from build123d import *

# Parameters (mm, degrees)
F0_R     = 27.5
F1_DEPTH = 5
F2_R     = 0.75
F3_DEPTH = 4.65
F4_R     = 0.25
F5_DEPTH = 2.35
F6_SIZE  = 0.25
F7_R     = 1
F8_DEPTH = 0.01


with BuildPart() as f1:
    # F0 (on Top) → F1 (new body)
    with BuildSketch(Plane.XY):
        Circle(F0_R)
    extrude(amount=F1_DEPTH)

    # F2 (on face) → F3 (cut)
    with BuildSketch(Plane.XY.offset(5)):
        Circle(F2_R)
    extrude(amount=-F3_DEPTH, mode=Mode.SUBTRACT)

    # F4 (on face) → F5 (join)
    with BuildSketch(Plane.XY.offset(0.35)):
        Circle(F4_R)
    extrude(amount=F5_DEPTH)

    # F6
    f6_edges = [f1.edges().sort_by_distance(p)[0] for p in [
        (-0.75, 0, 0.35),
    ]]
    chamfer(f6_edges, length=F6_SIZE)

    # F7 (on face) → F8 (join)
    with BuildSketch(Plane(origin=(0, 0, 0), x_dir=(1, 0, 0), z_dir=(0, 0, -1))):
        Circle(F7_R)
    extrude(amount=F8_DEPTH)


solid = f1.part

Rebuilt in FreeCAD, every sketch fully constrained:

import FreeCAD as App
import Part
import Sketcher

V = App.Vector


def edges_at(feature, points):
    """Names of the edges that pass closest to the given points."""
    edges = feature.Shape.Edges
    near = lambda p: min(range(len(edges)), key=lambda i: edges[i].distToShape(Part.Vertex(*p))[0])
    return sorted({f"Edge{near(p) + 1}" for p in points})

doc = App.newDocument("Part")
body = doc.addObject("PartDesign::Body", "Body")

# Sketch on XY plane
sketch1 = body.newObject("Sketcher::SketchObject", "Sketch")
sketch1.AttachmentSupport = (doc.getObject("XY_Plane"), [""])
sketch1.MapMode = "FlatFace"
sketch1.addGeometry(Part.Circle(V(0, 0, 0), V(0, 0, 1), 27.5), False)
sketch1.addConstraint(Sketcher.Constraint("Coincident", 0, 3, -1, 1))
sketch1.addConstraint(Sketcher.Constraint("Diameter", 0, 55.0))
pad1 = body.newObject("PartDesign::Pad", "Pad")
pad1.Profile = sketch1
pad1.Length = 5

# Sketch on XY plane
sketch2 = body.newObject("Sketcher::SketchObject", "Sketch001")
sketch2.AttachmentSupport = (doc.getObject("XY_Plane"), [""])
sketch2.MapMode = "FlatFace"
sketch2.AttachmentOffset = App.Placement(V(0, 0, 5), App.Rotation())
sketch2.addGeometry(Part.Circle(V(0, 0, 0), V(0, 0, 1), 0.75), False)
sketch2.addConstraint(Sketcher.Constraint("Coincident", 0, 3, -1, 1))
sketch2.addConstraint(Sketcher.Constraint("Diameter", 0, 1.5))
pocket1 = body.newObject("PartDesign::Pocket", "Pocket")
pocket1.Profile = sketch2
pocket1.Length = 4.65

# Sketch on XY plane
sketch3 = body.newObject("Sketcher::SketchObject", "Sketch002")
sketch3.AttachmentSupport = (doc.getObject("XY_Plane"), [""])
sketch3.MapMode = "FlatFace"
sketch3.AttachmentOffset = App.Placement(V(0, 0, 0.35), App.Rotation())
sketch3.addGeometry(Part.Circle(V(0, 0, 0), V(0, 0, 1), 0.25), False)
sketch3.addConstraint(Sketcher.Constraint("Coincident", 0, 3, -1, 1))
sketch3.addConstraint(Sketcher.Constraint("Diameter", 0, 0.5))
pad2 = body.newObject("PartDesign::Pad", "Pad001")
pad2.Profile = sketch3
pad2.Length = 2.35
doc.recompute()

chamfer = body.newObject("PartDesign::Chamfer", "Chamfer")
chamfer.Base = (pad2, edges_at(pad2, [(-0.75, 0, 0.35)]))
chamfer.Size = 0.25

# Sketch on XY plane
sketch4 = body.newObject("Sketcher::SketchObject", "Sketch003")
sketch4.AttachmentSupport = (doc.getObject("XY_Plane"), [""])
sketch4.MapMode = "FlatFace"
sketch4.addGeometry(Part.Circle(V(0, 0, 0), V(0, 0, 1), 1), False)
sketch4.addConstraint(Sketcher.Constraint("Coincident", 0, 3, -1, 1))
sketch4.addConstraint(Sketcher.Constraint("Diameter", 0, 2.0))
pad3 = body.newObject("PartDesign::Pad", "Pad002")
pad3.Profile = sketch4
pad3.Length = 0.01
pad3.Reversed = True

doc.recompute()
